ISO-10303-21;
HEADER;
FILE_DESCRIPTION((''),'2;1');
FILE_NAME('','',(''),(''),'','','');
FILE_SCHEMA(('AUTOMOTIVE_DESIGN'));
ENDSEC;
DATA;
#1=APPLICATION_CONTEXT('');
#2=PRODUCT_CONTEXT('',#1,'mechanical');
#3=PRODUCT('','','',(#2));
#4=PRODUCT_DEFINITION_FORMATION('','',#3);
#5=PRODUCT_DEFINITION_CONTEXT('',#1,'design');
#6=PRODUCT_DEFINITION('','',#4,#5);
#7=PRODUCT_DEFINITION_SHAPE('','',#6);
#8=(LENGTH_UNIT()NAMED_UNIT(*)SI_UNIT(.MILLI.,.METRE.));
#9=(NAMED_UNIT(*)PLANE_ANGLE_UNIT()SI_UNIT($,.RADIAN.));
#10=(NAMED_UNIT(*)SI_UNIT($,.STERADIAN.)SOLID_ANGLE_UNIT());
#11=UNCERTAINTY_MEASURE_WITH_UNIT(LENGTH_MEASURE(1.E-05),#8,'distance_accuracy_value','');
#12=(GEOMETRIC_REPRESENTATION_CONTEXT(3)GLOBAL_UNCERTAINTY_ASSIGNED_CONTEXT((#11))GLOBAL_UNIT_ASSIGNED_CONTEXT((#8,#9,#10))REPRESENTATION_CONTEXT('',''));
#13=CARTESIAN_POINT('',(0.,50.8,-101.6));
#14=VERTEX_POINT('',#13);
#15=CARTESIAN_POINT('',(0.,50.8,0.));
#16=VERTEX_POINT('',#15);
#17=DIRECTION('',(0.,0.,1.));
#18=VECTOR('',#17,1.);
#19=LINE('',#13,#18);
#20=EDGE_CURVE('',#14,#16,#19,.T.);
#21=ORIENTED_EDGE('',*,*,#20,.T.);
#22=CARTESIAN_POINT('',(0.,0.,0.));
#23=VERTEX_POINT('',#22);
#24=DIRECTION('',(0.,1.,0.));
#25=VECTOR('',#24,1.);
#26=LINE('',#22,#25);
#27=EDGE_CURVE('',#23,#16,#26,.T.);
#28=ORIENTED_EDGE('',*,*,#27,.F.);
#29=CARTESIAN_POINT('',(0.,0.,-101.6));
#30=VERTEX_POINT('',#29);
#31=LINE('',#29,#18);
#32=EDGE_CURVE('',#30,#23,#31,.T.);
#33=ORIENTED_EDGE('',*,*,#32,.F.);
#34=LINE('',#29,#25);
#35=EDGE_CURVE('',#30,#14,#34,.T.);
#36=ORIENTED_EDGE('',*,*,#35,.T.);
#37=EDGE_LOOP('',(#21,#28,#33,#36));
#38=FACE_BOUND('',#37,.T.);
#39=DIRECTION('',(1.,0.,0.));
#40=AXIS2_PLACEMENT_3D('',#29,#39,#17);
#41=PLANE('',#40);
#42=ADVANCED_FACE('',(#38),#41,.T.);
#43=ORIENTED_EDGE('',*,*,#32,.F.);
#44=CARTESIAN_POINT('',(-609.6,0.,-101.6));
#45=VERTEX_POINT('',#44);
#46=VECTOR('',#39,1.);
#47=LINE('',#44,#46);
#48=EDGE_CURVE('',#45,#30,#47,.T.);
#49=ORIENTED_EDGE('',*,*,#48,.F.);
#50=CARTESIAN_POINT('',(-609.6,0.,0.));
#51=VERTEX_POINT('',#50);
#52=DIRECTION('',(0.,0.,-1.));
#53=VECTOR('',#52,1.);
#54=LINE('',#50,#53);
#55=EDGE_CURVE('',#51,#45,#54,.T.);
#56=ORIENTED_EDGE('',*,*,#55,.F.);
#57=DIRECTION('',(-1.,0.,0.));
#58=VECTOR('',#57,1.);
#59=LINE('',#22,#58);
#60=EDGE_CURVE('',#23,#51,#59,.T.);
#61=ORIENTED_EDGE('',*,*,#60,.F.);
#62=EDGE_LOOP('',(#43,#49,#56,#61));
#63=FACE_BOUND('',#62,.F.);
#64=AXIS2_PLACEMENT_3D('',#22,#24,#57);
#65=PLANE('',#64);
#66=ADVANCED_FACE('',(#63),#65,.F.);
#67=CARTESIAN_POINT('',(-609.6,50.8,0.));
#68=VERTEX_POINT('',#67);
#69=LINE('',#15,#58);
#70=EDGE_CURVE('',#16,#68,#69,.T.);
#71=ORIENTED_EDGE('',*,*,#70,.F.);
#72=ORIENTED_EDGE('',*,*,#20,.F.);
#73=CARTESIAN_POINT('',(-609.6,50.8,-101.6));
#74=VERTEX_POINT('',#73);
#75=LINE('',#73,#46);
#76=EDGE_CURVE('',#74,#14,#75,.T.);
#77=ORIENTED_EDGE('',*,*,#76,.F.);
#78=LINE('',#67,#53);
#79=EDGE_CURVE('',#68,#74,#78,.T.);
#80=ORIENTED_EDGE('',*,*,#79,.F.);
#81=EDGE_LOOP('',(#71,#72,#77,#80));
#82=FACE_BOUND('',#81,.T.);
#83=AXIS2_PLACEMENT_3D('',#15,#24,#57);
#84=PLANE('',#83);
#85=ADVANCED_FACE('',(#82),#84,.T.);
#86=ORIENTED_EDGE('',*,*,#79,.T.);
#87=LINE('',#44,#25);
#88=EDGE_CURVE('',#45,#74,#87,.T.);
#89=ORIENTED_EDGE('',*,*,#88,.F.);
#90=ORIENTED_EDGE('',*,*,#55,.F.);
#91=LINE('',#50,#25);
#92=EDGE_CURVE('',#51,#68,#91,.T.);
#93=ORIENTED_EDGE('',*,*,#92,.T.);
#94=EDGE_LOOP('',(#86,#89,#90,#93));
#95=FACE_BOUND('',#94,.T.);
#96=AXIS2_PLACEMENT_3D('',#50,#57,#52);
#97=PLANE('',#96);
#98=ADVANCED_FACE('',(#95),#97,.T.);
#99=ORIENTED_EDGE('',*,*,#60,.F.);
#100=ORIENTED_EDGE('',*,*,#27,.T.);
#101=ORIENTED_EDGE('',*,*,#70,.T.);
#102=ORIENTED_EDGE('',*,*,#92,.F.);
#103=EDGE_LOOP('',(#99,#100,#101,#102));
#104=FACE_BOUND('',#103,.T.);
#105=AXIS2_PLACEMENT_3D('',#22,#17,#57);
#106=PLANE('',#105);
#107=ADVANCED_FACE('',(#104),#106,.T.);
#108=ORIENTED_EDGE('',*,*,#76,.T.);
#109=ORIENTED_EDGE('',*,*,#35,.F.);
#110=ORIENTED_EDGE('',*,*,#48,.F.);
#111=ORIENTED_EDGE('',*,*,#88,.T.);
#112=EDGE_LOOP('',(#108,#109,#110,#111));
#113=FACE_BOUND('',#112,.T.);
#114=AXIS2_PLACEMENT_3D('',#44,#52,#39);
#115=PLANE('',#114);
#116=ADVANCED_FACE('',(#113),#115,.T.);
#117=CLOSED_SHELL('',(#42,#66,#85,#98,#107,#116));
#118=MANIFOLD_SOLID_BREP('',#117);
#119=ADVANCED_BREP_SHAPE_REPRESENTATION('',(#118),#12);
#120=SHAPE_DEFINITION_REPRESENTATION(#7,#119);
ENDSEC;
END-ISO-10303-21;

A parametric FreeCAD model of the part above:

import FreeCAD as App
import Part
import Sketcher
Q = App.Units.Quantity


def add_polygon(sketch, points):
    """Adds a closed chain of lines whose ends are joined by coincident constraints."""
    first, n = sketch.GeometryCount, len(points)
    for a, b in zip(points, points[1:] + points[:1]):
        sketch.addGeometry(Part.LineSegment(App.Vector(*a, 0), App.Vector(*b, 0)), False)
    for i in range(n):
        sketch.addConstraint(Sketcher.Constraint("Coincident", first + i, 2, first + (i + 1) % n, 1))

doc = App.newDocument("Part")
params = doc.addObject("Spreadsheet::Sheet", "Params")
for row, (alias, value) in enumerate([
    ("sketch1_width", "24 in"),
    ("sketch1_height", "4 in"),
    ("pad1_length", "2 in"),
], start=1):
    params.set(f"A{row}", alias)
    params.set(f"B{row}", "=" + value)
    params.setAlias(f"B{row}", alias)

body = doc.addObject("PartDesign::Body", "Body")

sketch1 = body.newObject("Sketcher::SketchObject", "Sketch")
sketch1.AttachmentSupport = (doc.getObject("XZ_Plane"), [""])
sketch1.MapMode = "FlatFace"
add_polygon(sketch1, [(-609.6, 0), (0, 0), (0, -101.6), (-609.6, -101.6)])
sketch1.addConstraint(Sketcher.Constraint("Horizontal", 0))
sketch1.addConstraint(Sketcher.Constraint("Vertical", 1))
sketch1.addConstraint(Sketcher.Constraint("Horizontal", 2))
sketch1.addConstraint(Sketcher.Constraint("Vertical", 3))
sketch1.addConstraint(Sketcher.Constraint("Coincident", 0, 2, -1, 1))
sketch1.addConstraint(Sketcher.Constraint("DistanceX", 0, 1, 0, 2, Q("24 in")))
sketch1.addConstraint(Sketcher.Constraint("DistanceY", 1, 2, 1, 1, Q("4 in")))
sketch1.setExpression("Constraints[9]", "Params.sketch1_width")
sketch1.setExpression("Constraints[10]", "Params.sketch1_height")
pad1 = body.newObject("PartDesign::Pad", "Pad")
pad1.Profile = sketch1
pad1.setExpression("Length", "Params.pad1_length")
pad1.Reversed = True

doc.recompute()
